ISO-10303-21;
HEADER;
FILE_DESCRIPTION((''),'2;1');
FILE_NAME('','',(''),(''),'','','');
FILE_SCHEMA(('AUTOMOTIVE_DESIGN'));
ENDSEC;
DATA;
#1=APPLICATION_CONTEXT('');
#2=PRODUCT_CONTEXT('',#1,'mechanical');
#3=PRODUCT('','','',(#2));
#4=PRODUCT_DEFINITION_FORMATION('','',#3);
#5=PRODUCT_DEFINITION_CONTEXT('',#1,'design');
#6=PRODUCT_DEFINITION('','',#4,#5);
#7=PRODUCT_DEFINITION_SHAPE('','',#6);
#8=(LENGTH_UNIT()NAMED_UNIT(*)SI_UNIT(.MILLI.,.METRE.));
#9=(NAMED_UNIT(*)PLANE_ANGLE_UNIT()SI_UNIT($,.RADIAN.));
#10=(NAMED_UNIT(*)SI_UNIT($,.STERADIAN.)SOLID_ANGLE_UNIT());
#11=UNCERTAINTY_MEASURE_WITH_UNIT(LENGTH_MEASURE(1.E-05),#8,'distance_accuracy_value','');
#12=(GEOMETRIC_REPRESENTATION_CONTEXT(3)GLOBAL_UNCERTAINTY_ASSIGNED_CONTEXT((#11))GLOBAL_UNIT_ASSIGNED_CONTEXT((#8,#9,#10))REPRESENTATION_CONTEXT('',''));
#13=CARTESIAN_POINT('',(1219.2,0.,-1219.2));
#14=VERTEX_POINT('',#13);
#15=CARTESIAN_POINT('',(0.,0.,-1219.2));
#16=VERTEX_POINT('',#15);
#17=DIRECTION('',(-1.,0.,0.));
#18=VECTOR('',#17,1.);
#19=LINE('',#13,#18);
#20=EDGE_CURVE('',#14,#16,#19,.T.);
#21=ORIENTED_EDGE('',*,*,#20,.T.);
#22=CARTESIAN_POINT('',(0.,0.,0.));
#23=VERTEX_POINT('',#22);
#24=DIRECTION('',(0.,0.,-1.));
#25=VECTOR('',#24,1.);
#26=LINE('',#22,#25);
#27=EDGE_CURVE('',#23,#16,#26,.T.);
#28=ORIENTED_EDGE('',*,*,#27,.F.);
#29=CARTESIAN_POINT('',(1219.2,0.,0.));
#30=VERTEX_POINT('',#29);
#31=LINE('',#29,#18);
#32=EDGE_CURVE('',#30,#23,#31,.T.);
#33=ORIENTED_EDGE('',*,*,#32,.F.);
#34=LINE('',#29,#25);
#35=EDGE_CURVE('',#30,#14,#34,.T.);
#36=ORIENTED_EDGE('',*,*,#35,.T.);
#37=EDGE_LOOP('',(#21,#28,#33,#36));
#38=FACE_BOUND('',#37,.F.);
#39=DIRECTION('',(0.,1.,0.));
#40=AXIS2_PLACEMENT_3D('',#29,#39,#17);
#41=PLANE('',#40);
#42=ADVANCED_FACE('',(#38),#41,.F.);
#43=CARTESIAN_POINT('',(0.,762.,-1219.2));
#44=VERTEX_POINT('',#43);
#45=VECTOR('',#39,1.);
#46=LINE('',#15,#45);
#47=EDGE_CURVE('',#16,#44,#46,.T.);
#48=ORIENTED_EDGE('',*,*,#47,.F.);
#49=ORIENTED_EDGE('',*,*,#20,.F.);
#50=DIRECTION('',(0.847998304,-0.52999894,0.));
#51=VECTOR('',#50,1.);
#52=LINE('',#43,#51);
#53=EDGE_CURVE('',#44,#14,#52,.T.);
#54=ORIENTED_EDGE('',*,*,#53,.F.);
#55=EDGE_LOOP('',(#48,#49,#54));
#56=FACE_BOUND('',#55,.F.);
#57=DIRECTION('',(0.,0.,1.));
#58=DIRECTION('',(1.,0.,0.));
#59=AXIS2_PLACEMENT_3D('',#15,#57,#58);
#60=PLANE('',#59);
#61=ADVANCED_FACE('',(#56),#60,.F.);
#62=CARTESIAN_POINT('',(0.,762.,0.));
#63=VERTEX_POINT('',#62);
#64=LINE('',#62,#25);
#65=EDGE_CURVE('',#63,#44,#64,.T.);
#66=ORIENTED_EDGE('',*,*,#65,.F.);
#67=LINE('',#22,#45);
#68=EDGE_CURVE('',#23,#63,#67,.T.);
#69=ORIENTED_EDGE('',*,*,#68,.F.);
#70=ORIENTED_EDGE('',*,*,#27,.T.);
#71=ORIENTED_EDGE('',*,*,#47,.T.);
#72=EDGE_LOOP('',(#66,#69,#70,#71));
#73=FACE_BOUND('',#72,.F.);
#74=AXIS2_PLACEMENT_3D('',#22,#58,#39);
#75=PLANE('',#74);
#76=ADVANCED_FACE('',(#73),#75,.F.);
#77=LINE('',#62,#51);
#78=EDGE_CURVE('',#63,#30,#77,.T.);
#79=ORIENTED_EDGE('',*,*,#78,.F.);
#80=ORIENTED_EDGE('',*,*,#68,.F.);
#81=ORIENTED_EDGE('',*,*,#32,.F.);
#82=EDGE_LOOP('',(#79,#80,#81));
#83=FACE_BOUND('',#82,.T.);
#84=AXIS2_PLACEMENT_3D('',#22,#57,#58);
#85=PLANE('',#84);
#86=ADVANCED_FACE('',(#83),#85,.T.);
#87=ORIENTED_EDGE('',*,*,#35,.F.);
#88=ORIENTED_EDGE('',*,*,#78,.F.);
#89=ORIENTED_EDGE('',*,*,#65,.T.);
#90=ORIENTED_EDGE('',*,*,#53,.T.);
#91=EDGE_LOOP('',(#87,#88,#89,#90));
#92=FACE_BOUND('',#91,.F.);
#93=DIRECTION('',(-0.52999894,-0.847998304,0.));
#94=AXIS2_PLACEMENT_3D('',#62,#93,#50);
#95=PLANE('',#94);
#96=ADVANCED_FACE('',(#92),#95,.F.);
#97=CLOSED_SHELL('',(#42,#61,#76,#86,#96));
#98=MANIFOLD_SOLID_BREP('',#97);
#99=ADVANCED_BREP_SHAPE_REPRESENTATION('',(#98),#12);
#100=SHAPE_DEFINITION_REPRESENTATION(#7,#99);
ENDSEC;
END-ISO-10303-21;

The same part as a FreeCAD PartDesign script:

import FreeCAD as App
import Part
import Sketcher

V = App.Vector
Q = App.Units.Quantity


def add_polygon(sketch, points):
    """Adds a closed chain of lines whose ends are joined by coincident constraints."""
    first, n = sketch.GeometryCount, len(points)
    for a, b in zip(points, points[1:] + points[:1]):
        sketch.addGeometry(Part.LineSegment(App.Vector(*a, 0), App.Vector(*b, 0)), False)
    for i in range(n):
        sketch.addConstraint(Sketcher.Constraint("Coincident", first + i, 2, first + (i + 1) % n, 1))

doc = App.newDocument("Part")
body = doc.addObject("PartDesign::Body", "Body")

# Sketch on XY plane
sketch1 = doc.addObject("Sketcher::SketchObject", "Sketch")
body.addObject(sketch1)
sketch1.AttachmentSupport = (doc.XY_Plane, [""])
sketch1.MapMode = "FlatFace"
add_polygon(sketch1, [(0, 762), (0, 0), (1219, 0)])  # lines 0-2
sketch1.addConstraint([
    Sketcher.Constraint("Vertical", 0),
    Sketcher.Constraint("Horizontal", 1),
    Sketcher.Constraint("Coincident", 0, 2, -1, 1),
    Sketcher.Constraint("DistanceX", 1, 1, 1, 2, Q("48 in")),
    Sketcher.Constraint("DistanceY", 0, 2, 0, 1, Q("30 in")),
])
pad1 = doc.addObject("PartDesign::Pad", "Pad")
body.addObject(pad1)
pad1.Profile = sketch1
pad1.Length = Q("48 in")
pad1.Reversed = True

doc.recompute()
